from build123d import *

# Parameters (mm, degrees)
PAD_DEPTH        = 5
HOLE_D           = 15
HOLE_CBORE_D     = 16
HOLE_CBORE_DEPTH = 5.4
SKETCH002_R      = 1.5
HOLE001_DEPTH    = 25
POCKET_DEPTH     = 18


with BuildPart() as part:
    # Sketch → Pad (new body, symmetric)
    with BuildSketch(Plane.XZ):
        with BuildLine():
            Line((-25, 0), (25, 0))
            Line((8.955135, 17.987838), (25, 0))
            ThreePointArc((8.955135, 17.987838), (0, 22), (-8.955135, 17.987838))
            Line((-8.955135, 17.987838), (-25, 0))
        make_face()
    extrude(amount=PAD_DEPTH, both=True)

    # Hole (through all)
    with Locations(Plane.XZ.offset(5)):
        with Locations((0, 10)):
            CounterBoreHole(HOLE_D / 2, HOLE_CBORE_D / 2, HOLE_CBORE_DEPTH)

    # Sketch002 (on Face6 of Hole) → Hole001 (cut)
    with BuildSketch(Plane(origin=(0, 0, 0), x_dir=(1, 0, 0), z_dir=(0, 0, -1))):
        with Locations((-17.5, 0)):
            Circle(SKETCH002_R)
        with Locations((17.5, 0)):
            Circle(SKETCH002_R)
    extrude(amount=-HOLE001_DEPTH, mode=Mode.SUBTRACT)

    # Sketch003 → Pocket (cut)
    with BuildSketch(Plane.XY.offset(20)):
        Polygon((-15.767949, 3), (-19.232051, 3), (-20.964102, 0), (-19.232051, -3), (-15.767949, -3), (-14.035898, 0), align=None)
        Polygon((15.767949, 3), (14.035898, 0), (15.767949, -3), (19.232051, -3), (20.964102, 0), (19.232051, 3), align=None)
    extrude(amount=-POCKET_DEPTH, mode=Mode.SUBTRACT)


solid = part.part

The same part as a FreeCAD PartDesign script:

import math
import FreeCAD as App
import Part
import Sketcher
from FreeCAD import Vector
Q = App.Units.Quantity

doc = App.newDocument("Part")
body = doc.addObject("PartDesign::Body", "Body")

# Sketch on XZ plane
sketch1 = body.newObject("Sketcher::SketchObject", "Sketch")
sketch1.AttachmentSupport = (doc.getObject("XZ_Plane"), [""])
sketch1.MapMode = "FlatFace"
sketch1.addGeometry([
    Part.LineSegment(Vector(-25, 0, 0), Vector(25, 0, 0)),
    Part.LineSegment(Vector(25, 0, 0), Vector(9, 18, 0)),
    Part.ArcOfCircle(Part.Circle(Vector(0, 10, 0), Vector(0, 0, 1), 12), math.radians(42), math.radians(138)),
    Part.LineSegment(Vector(-9, 18, 0), Vector(-25, 0, 0)),
], False)
sketch1.addConstraint([
    Sketcher.Constraint("Coincident", 0, 2, 1, 1),
    Sketcher.Constraint("Tangent", 1, 2, 2, 1),
    Sketcher.Constraint("Tangent", 2, 2, 3, 1),
    Sketcher.Constraint("Coincident", 3, 2, 0, 1),
    Sketcher.Constraint("Horizontal", 0),
    Sketcher.Constraint("Symmetric", 0, 2, 3, 2, -1, 1),
    Sketcher.Constraint("PointOnObject", 2, 3, -2),
    Sketcher.Constraint("Radius", 2, Q("12 mm")),
    Sketcher.Constraint("DistanceX", 0, 1, 0, 2, Q("50 mm")),
    Sketcher.Constraint("DistanceY", -1, 1, 2, 3, Q("10 mm")),
])
pad1 = body.newObject("PartDesign::Pad", "Pad")
pad1.Profile = sketch1
pad1.Length = 10
pad1.Midplane = True

# Sketch on XZ plane
sketch2 = body.newObject("Sketcher::SketchObject", "Sketch001")
sketch2.AttachmentSupport = (doc.getObject("XZ_Plane"), [""])
sketch2.MapMode = "FlatFace"
sketch2.AttachmentOffset = App.Placement(Vector(0, 0, 5), App.Rotation())
sketch2.addGeometry(Part.Circle(Vector(0, 10, 0), Vector(0, 0, 1), 8), False)
sketch2.addConstraint([
    Sketcher.Constraint("PointOnObject", 0, 3, -2),
    Sketcher.Constraint("Diameter", 0, Q("15 mm")),
    Sketcher.Constraint("DistanceY", -1, 1, 0, 3, Q("10 mm")),
])
doc.recompute()
hole = body.newObject("PartDesign::Hole", "Hole")
hole.Profile = sketch2
hole.ThreadType = "None"
hole.Diameter = 15
hole.DepthType = "ThroughAll"
hole.HoleCutType = "Counterbore"
hole.HoleCutDiameter = 16
hole.HoleCutDepth = 5.4

# Sketch on XY plane
sketch3 = body.newObject("Sketcher::SketchObject", "Sketch002")
sketch3.AttachmentSupport = (doc.getObject("XY_Plane"), [""])
sketch3.MapMode = "FlatFace"
sketch3.addGeometry([
    Part.Circle(Vector(-17.5, 0, 0), Vector(0, 0, 1), 1.5),
    Part.Circle(Vector(17.5, 0, 0), Vector(0, 0, 1), 1.5),
], False)
sketch3.addConstraint([
    Sketcher.Constraint("Equal", 0, 1),
    Sketcher.Constraint("Symmetric", 0, 3, 1, 3, -1, 1),
    Sketcher.Constraint("PointOnObject", 0, 3, -1),
    Sketcher.Constraint("Diameter", 0, Q("3 mm")),
    Sketcher.Constraint("DistanceX", 0, 3, 1, 3, Q("35 mm")),
])
pocket1 = body.newObject("PartDesign::Pocket", "Pocket")
pocket1.Profile = sketch3
pocket1.Length = 25
pocket1.Reversed = True

# Sketch on XY plane
sketch4 = body.newObject("Sketcher::SketchObject", "Sketch003")
sketch4.AttachmentSupport = (doc.getObject("XY_Plane"), [""])
sketch4.MapMode = "FlatFace"
sketch4.AttachmentOffset = App.Placement(Vector(0, 0, 20), App.Rotation())
sketch4.addGeometry([
    Part.LineSegment(Vector(-15.8, 3, 0), Vector(-19.2, 3, 0)),  # 0
    Part.LineSegment(Vector(-19.2, 3, 0), Vector(-21, 0, 0)),  # 1
    Part.LineSegment(Vector(-21, 0, 0), Vector(-19.2, -3, 0)),  # 2
    Part.LineSegment(Vector(-19.2, -3, 0), Vector(-15.8, -3, 0)),  # 3
    Part.LineSegment(Vector(-15.8, -3, 0), Vector(-14, 0, 0)),  # 4
    Part.LineSegment(Vector(-14, 0, 0), Vector(-15.8, 3, 0)),  # 5
    Part.LineSegment(Vector(15.8, 3, 0), Vector(14, 0, 0)),  # 6
    Part.LineSegment(Vector(14, 0, 0), Vector(15.8, -3, 0)),  # 7
    Part.LineSegment(Vector(15.8, -3, 0), Vector(19.2, -3, 0)),  # 8
    Part.LineSegment(Vector(19.2, -3, 0), Vector(21, 0, 0)),  # 9
    Part.LineSegment(Vector(21, 0, 0), Vector(19.2, 3, 0)),  # 10
    Part.LineSegment(Vector(19.2, 3, 0), Vector(15.8, 3, 0)),  # 11
], False)
sketch4.addConstraint([
    Sketcher.Constraint("Coincident", 0, 2, 1, 1),
    Sketcher.Constraint("Coincident", 1, 2, 2, 1),
    Sketcher.Constraint("Coincident", 2, 2, 3, 1),
    Sketcher.Constraint("Coincident", 3, 2, 4, 1),
    Sketcher.Constraint("Coincident", 4, 2, 5, 1),
    Sketcher.Constraint("Coincident", 5, 2, 0, 1),
    Sketcher.Constraint("Coincident", 6, 2, 7, 1),
    Sketcher.Constraint("Coincident", 7, 2, 8, 1),
    Sketcher.Constraint("Coincident", 8, 2, 9, 1),
    Sketcher.Constraint("Coincident", 9, 2, 10, 1),
    Sketcher.Constraint("Coincident", 10, 2, 11, 1),
    Sketcher.Constraint("Coincident", 11, 2, 6, 1),
    Sketcher.Constraint("Horizontal", 0),
    Sketcher.Constraint("Horizontal", 3),
    Sketcher.Constraint("Horizontal", 8),
    Sketcher.Constraint("Horizontal", 11),
    Sketcher.Constraint("Symmetric", 4, 2, 6, 2, -1, 1),
    Sketcher.Constraint("Symmetric", 5, 2, 7, 2, -1, 1),
    Sketcher.Constraint("Symmetric", 1, 2, 9, 2, -1, 1),
    Sketcher.Constraint("Symmetric", 2, 2, 10, 2, -1, 1),
    Sketcher.Constraint("Symmetric", 3, 2, 7, 2, -2),
    Sketcher.Constraint("PointOnObject", 1, 2, -1),
    Sketcher.Constraint("PointOnObject", 4, 2, -1),
    Sketcher.Constraint("Parallel", 1, 4),
    Sketcher.Constraint("Parallel", 2, 5),
    Sketcher.Constraint("Parallel", 4, 6),
    Sketcher.Constraint("Parallel", 6, 9),
    Sketcher.Constraint("Angle", 1, Q("-120.000003 deg")),
    Sketcher.Constraint("DistanceY", -1, 1, 0, 2, Q("3 mm")),
    Sketcher.Constraint("DistanceX", 2, 2, 7, 2, Q("35 mm")),
    Sketcher.Constraint("DistanceX", 0, 2, 0, 1, Q("3.464102 mm")),
])
pocket2 = body.newObject("PartDesign::Pocket", "Pocket001")
pocket2.Profile = sketch4
pocket2.Length = 18

doc.recompute()
